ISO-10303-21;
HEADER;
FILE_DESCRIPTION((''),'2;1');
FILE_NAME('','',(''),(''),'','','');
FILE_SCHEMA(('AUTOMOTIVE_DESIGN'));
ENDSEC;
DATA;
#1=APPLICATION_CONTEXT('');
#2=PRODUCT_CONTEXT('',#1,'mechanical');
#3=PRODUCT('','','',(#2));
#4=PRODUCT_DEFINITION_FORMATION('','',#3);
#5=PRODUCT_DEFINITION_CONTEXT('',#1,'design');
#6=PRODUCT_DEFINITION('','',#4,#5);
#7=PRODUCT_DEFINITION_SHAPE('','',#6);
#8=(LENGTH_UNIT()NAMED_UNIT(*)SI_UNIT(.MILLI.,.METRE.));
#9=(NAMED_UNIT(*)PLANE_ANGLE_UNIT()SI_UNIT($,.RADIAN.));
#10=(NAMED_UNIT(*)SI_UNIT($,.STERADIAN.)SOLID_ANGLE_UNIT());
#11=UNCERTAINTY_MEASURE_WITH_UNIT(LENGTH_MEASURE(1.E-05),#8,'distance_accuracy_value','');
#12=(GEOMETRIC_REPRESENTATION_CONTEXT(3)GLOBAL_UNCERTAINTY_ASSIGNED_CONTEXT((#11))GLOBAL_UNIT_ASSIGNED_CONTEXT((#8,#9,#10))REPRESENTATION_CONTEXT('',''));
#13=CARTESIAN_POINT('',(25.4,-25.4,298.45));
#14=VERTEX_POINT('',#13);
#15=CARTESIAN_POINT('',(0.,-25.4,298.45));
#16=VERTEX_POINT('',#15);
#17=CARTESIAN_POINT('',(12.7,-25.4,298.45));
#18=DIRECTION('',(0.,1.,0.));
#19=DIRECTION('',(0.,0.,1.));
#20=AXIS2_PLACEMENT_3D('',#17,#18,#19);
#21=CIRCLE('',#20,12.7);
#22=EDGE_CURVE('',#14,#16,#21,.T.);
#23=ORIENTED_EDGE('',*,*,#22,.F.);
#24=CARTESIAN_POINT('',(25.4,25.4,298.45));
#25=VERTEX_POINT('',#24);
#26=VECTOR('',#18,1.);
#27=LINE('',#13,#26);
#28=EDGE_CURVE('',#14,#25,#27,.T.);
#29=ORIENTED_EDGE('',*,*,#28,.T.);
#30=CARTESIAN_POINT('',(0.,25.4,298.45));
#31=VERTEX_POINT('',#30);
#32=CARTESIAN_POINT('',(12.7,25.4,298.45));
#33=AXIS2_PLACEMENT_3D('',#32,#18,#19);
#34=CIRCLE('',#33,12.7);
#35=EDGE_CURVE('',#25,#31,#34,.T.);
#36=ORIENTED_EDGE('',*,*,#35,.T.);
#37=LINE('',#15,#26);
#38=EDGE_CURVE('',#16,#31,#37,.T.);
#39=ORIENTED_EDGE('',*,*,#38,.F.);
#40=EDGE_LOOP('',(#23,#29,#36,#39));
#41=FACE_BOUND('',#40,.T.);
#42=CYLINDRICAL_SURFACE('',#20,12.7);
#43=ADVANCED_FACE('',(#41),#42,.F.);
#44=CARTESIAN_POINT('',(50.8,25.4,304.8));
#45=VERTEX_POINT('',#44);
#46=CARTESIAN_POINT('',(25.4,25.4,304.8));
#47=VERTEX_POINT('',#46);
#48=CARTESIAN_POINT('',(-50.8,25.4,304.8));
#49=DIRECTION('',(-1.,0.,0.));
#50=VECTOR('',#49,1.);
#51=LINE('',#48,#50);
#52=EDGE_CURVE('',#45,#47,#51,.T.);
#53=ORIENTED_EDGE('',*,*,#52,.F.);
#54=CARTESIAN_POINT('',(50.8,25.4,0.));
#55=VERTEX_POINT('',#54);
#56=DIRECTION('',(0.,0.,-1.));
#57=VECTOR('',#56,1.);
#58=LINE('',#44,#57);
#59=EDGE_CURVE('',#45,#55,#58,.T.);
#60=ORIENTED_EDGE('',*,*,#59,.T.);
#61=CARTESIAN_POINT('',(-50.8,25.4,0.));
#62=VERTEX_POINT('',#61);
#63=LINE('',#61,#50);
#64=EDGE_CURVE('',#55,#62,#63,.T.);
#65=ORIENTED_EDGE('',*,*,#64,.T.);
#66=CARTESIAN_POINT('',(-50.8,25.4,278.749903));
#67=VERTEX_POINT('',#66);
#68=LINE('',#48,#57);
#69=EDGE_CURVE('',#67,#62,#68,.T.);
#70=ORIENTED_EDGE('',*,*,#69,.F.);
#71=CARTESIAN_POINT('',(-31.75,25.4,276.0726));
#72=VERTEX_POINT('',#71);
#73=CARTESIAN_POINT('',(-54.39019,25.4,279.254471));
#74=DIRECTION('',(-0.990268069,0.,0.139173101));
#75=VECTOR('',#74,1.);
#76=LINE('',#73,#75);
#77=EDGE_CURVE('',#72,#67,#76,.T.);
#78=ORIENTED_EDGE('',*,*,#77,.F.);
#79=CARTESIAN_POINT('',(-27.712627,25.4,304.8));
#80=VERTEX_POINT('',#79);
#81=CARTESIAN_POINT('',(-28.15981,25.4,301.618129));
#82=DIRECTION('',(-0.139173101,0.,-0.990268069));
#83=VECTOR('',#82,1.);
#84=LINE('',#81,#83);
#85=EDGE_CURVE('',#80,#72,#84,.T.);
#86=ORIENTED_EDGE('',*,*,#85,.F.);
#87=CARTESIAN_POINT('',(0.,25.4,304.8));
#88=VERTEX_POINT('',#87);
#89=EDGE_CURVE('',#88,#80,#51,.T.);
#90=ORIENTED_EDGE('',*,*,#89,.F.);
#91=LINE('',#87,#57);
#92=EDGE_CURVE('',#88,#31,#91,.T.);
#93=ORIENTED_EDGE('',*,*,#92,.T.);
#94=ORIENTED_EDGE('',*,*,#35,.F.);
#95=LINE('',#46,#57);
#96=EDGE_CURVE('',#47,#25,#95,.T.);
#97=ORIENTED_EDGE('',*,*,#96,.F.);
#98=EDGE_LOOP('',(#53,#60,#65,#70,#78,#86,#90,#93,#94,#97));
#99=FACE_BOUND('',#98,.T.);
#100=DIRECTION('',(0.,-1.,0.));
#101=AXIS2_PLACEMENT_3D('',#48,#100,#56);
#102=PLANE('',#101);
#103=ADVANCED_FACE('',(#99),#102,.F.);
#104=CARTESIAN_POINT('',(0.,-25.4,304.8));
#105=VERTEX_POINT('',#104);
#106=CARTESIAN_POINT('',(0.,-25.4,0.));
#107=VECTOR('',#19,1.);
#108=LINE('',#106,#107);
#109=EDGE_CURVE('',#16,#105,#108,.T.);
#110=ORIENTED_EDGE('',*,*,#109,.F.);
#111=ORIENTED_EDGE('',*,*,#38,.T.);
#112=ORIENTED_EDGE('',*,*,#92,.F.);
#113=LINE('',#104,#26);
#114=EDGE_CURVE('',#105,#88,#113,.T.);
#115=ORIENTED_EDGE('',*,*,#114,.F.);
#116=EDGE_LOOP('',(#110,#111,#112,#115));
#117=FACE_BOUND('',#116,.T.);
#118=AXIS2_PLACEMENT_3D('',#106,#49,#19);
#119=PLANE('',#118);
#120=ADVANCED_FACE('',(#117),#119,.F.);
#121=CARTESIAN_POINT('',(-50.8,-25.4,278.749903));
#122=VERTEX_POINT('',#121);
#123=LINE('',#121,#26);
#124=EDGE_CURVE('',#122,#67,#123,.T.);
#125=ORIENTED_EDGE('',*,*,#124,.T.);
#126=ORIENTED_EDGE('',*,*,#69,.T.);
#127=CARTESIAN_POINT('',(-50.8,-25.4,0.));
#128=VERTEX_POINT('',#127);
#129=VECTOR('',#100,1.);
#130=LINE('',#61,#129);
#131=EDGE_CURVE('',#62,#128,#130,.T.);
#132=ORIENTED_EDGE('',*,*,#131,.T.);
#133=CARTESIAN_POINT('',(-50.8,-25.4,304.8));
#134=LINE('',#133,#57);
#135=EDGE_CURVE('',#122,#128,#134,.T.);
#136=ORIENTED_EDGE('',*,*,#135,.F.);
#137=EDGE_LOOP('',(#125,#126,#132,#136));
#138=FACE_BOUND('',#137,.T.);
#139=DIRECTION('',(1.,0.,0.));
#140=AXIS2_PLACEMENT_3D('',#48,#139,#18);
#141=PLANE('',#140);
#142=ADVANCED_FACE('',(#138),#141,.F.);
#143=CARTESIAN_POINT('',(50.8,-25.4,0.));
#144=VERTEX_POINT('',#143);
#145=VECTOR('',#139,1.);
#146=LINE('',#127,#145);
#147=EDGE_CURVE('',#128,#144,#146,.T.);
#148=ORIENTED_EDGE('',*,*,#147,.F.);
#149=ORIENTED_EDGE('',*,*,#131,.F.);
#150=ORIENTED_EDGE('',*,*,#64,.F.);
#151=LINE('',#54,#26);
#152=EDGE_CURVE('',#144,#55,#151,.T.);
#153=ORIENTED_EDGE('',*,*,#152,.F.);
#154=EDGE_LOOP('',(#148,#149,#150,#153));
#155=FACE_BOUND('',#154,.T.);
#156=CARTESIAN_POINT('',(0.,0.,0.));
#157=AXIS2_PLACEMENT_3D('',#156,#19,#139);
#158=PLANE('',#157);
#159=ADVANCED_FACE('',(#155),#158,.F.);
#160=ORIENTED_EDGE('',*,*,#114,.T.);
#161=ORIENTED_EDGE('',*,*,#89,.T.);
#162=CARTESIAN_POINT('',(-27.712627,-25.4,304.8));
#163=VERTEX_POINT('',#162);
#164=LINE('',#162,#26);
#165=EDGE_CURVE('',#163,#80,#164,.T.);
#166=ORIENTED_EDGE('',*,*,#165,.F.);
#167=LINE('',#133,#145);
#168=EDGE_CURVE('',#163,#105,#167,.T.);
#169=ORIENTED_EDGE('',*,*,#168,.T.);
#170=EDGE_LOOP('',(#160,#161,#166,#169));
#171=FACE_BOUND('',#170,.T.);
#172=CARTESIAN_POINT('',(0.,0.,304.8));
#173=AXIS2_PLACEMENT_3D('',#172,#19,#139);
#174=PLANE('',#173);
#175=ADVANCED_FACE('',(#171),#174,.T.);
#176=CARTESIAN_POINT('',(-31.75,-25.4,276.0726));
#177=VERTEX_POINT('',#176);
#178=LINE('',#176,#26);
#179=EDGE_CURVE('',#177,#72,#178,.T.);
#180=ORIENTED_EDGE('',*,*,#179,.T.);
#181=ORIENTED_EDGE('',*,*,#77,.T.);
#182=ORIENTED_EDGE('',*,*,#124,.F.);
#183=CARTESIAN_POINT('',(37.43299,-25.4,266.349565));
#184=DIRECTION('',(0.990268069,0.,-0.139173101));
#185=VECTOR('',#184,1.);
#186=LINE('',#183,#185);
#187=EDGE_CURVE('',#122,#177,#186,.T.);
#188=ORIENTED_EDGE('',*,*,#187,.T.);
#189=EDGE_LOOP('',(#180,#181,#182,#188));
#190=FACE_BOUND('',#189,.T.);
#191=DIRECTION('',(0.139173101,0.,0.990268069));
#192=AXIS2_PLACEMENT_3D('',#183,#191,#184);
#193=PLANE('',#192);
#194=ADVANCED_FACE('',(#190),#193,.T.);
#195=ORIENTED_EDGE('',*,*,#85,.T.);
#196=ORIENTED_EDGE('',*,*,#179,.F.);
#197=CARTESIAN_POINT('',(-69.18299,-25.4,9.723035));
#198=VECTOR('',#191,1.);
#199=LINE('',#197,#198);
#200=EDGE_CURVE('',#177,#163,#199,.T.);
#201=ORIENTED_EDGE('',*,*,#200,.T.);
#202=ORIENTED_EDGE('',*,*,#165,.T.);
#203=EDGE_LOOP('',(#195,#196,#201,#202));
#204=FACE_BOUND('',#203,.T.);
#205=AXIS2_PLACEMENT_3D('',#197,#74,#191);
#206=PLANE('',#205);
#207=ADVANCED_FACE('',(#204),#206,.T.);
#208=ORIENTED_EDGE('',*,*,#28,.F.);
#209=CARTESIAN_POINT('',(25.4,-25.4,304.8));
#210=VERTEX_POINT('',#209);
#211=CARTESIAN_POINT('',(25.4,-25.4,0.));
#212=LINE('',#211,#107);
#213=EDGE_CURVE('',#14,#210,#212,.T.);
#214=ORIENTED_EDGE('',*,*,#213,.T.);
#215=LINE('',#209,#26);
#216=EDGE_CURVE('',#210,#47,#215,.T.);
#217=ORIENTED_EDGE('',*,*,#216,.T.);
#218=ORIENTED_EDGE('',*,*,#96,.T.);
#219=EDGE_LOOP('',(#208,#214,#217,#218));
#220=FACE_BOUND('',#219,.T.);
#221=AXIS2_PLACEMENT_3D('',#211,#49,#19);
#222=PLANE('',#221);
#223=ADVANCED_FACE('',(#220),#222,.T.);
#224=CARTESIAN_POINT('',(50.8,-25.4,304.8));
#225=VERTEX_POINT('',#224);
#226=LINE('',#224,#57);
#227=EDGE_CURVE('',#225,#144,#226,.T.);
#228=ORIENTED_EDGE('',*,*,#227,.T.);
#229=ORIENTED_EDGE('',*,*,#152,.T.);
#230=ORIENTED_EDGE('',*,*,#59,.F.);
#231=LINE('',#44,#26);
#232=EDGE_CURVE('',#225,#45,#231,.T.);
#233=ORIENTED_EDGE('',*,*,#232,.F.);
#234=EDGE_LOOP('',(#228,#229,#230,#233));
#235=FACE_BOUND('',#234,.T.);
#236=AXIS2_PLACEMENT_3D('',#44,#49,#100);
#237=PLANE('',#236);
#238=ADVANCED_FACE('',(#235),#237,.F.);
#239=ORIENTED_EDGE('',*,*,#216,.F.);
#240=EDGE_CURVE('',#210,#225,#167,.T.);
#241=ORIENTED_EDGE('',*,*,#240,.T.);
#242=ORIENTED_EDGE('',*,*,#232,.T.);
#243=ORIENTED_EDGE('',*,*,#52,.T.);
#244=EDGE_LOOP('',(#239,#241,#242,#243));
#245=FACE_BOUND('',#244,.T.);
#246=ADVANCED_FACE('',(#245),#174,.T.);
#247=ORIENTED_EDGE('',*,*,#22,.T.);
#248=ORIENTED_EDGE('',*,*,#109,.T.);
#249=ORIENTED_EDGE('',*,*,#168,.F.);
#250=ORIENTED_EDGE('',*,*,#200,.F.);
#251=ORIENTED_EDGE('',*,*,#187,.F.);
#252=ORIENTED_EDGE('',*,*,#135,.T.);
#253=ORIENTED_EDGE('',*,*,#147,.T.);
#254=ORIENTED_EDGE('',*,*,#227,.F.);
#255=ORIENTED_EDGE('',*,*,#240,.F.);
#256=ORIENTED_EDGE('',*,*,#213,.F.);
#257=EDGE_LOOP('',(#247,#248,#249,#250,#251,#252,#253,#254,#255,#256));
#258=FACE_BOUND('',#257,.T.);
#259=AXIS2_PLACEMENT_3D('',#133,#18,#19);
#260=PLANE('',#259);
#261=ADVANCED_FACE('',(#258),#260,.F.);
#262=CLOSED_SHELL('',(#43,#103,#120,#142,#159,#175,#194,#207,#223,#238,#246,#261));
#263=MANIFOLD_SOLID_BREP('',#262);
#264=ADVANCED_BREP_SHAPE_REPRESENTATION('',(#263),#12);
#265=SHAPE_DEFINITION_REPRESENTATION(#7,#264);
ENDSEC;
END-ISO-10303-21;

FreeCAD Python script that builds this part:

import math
import FreeCAD as App
import Part
import Sketcher
Q = App.Units.Quantity


def add_polygon(sketch, points):
    """Adds a closed chain of lines whose ends are joined by coincident constraints."""
    first, n = sketch.GeometryCount, len(points)
    for a, b in zip(points, points[1:] + points[:1]):
        sketch.addGeometry(Part.LineSegment(App.Vector(*a, 0), App.Vector(*b, 0)), False)
    for i in range(n):
        sketch.addConstraint(Sketcher.Constraint("Coincident", first + i, 2, first + (i + 1) % n, 1))

doc = App.newDocument("Part")
params = doc.addObject("Spreadsheet::Sheet", "Params")
for row, (alias, value) in enumerate([
    ("sketch1_width", "4 in"),
    ("sketch1_height", "2 in"),
    ("pad1_length", "12 in"),
    ("sketch2_radius", "0.5 in"),
    ("sketch2_height", "0.25 in"),
], start=1):
    params.set(f"A{row}", alias)
    params.set(f"B{row}", "=" + value)
    params.setAlias(f"B{row}", alias)

body = doc.addObject("PartDesign::Body", "Body")

sketch1 = body.newObject("Sketcher::SketchObject", "Sketch")
sketch1.AttachmentSupport = (doc.getObject("XY_Plane"), [""])
sketch1.MapMode = "FlatFace"
add_polygon(sketch1, [(-51, 25), (-51, -25), (51, -25), (51, 25)])
sketch1.addConstraint([
    Sketcher.Constraint("Vertical", 0),
    Sketcher.Constraint("Horizontal", 1),
    Sketcher.Constraint("Vertical", 2),
    Sketcher.Constraint("Horizontal", 3),
    Sketcher.Constraint("Symmetric", 0, 2, 2, 2, -1, 1),
    Sketcher.Constraint("DistanceX", 1, 1, 1, 2, Q("4 in")),
    Sketcher.Constraint("DistanceY", 0, 2, 0, 1, Q("2 in")),
])
sketch1.setExpression("Constraints[9]", "Params.sketch1_width")
sketch1.setExpression("Constraints[10]", "Params.sketch1_height")
pad1 = body.newObject("PartDesign::Pad", "Pad")
pad1.Profile = sketch1
pad1.setExpression("Length", "Params.pad1_length")

sketch2 = body.newObject("Sketcher::SketchObject", "Sketch001")
sketch2.AttachmentSupport = (doc.getObject("XZ_Plane"), [""])
sketch2.MapMode = "FlatFace"
sketch2.AttachmentOffset = App.Placement(App.Vector(0, 0, -1 * 25.4), App.Rotation())
sketch2.addGeometry(Part.ArcOfCircle(Part.Circle(App.Vector(12.7, 298.4, 0), App.Vector(0, 0, 1), 12.7), math.radians(180), math.radians(360)), False)
sketch2.addGeometry(Part.LineSegment(App.Vector(0, 298.4, 0), App.Vector(0, 304.8, 0)), False)
sketch2.addGeometry(Part.LineSegment(App.Vector(0, 304.8, 0), App.Vector(1.7, 304.8, 0)), False)
sketch2.addGeometry(Part.ArcOfCircle(Part.Circle(App.Vector(12.7, 298.4, 0), App.Vector(0, 0, 1), 12.7), math.radians(30), math.radians(150)), False)
sketch2.addGeometry(Part.LineSegment(App.Vector(23.7, 304.8, 0), App.Vector(25.4, 304.8, 0)), False)
sketch2.addGeometry(Part.LineSegment(App.Vector(25.4, 304.8, 0), App.Vector(25.4, 298.4, 0)), False)
add_polygon(sketch2, [(-31.8, 276.1), (-50.8, 278.7), (-50.8, 304.8), (-27.7, 304.8)])
sketch2.addConstraint([
    Sketcher.Constraint("Tangent", 0, 1, 1, 1),
    Sketcher.Constraint("Coincident", 1, 2, 2, 1),
    Sketcher.Constraint("Coincident", 2, 2, 3, 2),
    Sketcher.Constraint("Coincident", 3, 1, 4, 1),
    Sketcher.Constraint("Coincident", 4, 2, 5, 1),
    Sketcher.Constraint("Tangent", 5, 2, 0, 2),
    Sketcher.Constraint("Vertical", 1),
    Sketcher.Constraint("Horizontal", 2),
    Sketcher.Constraint("Horizontal", 4),
    Sketcher.Constraint("Vertical", 5),
    Sketcher.Constraint("Vertical", 7),
    Sketcher.Constraint("Horizontal", 8),
    Sketcher.Constraint("Coincident", 3, 3, 0, 3),
    Sketcher.Constraint("Equal", 0, 3),
    Sketcher.Constraint("PointOnObject", 0, 1, -2),
    Sketcher.Constraint("Perpendicular", 6, 9),
    Sketcher.Constraint("Horizontal", 2, 2, 3, 1),
    Sketcher.Constraint("Horizontal", 4, 2, 7, 2),
    Sketcher.Constraint("Radius", 0, Q("0.5 in")),
    Sketcher.Constraint("DistanceY", -1, 1, 1, 2, Q("12 in")),
    Sketcher.Constraint("DistanceX", 6, 2, -1, 1, Q("2 in")),
    Sketcher.Constraint("Angle", 6, Q("172 deg")),
    Sketcher.Constraint("DistanceY", 1, 1, 1, 2, Q("0.25 in")),
    Sketcher.Constraint("DistanceX", 9, 2, -1, 1, Q("1.25 in")),
    Sketcher.Constraint("DistanceY", -1, 1, 9, 2, Q("10.869 in")),
])
sketch2.setExpression("Constraints[22]", "Params.sketch2_radius")
sketch2.setExpression("Constraints[26]", "Params.sketch2_height")
pocket1 = body.newObject("PartDesign::Pocket", "Pocket")
pocket1.Profile = sketch2
pocket1.Type = "ThroughAll"
pocket1.Midplane = True

doc.recompute()
